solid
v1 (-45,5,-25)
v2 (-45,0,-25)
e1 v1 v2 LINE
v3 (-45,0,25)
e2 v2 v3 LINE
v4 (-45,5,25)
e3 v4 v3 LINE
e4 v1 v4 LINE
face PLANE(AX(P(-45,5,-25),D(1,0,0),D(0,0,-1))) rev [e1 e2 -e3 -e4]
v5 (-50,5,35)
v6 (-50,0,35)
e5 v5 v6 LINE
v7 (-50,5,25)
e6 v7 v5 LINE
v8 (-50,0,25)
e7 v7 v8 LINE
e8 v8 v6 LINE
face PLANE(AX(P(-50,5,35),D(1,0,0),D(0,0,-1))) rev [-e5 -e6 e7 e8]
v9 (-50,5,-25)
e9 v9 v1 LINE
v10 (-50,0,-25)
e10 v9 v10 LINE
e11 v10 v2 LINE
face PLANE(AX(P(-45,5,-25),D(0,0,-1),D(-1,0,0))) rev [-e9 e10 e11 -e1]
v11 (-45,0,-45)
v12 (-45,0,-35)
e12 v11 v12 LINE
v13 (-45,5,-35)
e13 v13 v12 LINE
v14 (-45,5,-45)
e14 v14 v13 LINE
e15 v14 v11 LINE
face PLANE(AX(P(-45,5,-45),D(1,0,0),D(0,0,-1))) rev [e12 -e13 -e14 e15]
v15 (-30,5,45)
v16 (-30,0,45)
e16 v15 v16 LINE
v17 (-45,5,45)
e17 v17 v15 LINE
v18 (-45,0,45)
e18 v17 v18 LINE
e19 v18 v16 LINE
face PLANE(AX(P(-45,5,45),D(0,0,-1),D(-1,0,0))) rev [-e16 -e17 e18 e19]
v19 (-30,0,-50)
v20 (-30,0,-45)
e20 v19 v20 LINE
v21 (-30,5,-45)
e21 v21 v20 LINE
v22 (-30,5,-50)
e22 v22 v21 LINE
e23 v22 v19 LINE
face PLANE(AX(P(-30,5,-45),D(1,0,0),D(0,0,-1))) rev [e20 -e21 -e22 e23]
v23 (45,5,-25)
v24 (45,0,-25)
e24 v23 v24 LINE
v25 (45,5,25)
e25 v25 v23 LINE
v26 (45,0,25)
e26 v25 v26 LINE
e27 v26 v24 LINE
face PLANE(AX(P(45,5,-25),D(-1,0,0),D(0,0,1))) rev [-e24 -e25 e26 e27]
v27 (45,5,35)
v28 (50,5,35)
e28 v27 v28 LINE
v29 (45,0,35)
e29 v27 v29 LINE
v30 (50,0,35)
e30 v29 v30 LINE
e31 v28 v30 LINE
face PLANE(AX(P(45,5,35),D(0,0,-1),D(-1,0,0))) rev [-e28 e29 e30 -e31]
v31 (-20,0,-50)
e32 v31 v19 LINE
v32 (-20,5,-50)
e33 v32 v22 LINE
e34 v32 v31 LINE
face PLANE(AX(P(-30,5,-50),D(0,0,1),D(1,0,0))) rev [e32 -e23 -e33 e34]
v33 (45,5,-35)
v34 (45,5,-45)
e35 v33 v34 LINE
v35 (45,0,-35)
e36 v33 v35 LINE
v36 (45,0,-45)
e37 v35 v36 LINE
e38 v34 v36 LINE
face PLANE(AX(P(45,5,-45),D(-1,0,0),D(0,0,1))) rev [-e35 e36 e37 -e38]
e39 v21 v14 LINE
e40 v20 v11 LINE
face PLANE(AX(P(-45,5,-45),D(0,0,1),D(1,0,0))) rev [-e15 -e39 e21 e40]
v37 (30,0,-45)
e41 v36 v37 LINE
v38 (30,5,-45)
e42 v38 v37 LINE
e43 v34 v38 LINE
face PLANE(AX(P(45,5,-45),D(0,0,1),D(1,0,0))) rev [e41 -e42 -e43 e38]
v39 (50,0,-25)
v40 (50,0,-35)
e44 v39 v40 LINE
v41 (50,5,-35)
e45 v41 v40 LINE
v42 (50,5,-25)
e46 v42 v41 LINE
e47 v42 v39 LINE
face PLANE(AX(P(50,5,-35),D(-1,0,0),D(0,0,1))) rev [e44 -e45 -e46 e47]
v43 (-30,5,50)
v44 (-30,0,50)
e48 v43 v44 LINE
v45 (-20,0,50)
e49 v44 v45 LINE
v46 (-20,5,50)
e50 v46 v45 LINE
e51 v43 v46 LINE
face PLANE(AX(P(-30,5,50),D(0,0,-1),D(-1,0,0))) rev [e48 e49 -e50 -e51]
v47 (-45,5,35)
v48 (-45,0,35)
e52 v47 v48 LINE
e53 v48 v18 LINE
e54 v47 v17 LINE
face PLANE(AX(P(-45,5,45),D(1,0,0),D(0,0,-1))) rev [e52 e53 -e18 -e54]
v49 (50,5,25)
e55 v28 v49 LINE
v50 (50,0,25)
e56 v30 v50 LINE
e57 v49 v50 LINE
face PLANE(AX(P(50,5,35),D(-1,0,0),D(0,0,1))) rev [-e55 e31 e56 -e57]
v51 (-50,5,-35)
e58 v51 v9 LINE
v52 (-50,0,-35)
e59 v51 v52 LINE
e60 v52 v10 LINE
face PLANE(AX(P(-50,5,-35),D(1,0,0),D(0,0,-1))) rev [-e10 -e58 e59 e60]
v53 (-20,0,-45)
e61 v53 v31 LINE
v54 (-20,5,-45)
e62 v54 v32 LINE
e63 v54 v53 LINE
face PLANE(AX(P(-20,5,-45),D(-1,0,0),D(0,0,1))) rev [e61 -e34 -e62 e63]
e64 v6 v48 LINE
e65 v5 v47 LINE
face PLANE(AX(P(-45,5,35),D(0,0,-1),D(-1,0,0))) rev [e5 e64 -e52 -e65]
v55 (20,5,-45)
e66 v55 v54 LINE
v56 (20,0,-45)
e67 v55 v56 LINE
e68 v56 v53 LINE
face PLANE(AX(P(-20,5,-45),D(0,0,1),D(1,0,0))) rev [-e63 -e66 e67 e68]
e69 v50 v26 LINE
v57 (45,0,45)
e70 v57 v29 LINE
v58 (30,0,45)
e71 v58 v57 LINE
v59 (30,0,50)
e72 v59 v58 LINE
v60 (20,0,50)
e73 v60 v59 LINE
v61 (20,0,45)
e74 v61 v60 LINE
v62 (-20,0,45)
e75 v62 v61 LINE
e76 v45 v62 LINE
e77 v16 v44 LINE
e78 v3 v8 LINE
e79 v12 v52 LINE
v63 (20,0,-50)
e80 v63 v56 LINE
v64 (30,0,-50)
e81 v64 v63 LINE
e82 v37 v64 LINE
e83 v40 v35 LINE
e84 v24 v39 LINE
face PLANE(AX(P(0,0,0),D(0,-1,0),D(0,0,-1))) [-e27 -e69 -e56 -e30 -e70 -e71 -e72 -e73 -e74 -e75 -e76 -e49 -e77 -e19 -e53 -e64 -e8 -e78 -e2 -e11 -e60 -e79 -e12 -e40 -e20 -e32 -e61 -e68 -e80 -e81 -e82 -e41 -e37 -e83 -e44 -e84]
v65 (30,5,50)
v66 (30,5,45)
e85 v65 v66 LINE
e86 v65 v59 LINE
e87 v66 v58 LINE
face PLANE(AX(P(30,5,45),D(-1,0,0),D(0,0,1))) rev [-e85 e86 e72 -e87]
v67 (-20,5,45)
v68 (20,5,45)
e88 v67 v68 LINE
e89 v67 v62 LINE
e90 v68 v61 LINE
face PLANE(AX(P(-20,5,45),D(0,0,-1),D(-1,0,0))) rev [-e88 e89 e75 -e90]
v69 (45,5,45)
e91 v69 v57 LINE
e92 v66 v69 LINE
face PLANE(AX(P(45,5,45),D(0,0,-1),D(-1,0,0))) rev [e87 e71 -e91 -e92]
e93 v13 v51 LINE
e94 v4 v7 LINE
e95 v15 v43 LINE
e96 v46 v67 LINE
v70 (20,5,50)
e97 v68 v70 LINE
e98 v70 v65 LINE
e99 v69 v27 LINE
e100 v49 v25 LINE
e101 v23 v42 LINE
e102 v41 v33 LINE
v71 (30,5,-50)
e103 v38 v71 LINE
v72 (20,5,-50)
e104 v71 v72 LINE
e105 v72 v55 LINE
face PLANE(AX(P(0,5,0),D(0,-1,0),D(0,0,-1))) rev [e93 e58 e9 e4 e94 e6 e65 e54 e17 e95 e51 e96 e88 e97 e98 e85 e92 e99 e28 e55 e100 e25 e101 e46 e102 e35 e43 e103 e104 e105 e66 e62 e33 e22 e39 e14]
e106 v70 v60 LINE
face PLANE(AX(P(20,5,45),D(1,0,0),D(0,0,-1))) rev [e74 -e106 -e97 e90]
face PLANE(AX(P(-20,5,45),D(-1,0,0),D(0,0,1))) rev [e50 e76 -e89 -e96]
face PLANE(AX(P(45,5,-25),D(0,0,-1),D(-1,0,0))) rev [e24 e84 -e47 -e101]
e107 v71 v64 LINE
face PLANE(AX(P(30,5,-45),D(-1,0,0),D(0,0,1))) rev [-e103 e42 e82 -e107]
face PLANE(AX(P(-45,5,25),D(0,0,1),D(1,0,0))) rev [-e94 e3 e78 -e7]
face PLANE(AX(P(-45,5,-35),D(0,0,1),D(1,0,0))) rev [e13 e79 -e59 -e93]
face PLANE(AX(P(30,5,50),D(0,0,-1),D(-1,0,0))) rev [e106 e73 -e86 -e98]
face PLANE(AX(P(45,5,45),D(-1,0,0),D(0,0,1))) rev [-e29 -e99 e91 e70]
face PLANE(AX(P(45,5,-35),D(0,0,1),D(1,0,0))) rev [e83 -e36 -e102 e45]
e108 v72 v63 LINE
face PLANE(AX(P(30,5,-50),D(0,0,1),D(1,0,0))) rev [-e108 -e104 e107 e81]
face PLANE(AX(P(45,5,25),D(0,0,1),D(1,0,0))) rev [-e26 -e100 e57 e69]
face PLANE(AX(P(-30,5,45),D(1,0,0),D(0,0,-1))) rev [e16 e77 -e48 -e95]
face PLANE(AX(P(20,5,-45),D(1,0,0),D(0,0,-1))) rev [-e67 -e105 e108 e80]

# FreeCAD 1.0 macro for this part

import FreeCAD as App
import Part
import Sketcher
Q = App.Units.Quantity


def add_polygon(sketch, points):
    """Adds a closed chain of lines whose ends are joined by coincident constraints."""
    first, n = sketch.GeometryCount, len(points)
    for a, b in zip(points, points[1:] + points[:1]):
        sketch.addGeometry(Part.LineSegment(App.Vector(*a, 0), App.Vector(*b, 0)), False)
    for i in range(n):
        sketch.addConstraint(Sketcher.Constraint("Coincident", first + i, 2, first + (i + 1) % n, 1))

doc = App.newDocument("Part")
body = doc.addObject("PartDesign::Body", "Body")

sketch1 = body.newObject("Sketcher::SketchObject", "Sketch")
sketch1.AttachmentSupport = (doc.getObject("XZ_Plane"), [""])
sketch1.MapMode = "FlatFace"
add_polygon(sketch1, [(-30, -45), (-45, -45), (-45, -35), (-50, -35), (-50, -25), (-45, -25), (-45, 25), (-50, 25), (-50, 35), (-45, 35), (-45, 45), (-30, 45), (-30, 50), (-20, 50), (-20, 45), (20, 45), (20, 50), (30, 50), (30, 45), (45, 45), (45, 35), (50, 35), (50, 25), (45, 25), (45, -25), (50, -25), (50, -35), (45, -35), (45, -45), (30, -45), (30, -50), (20, -50), (20, -45), (-20, -45), (-20, -50), (-30, -50)])
sketch1.addConstraint([
    Sketcher.Constraint("Horizontal", 0),
    Sketcher.Constraint("Vertical", 1),
    Sketcher.Constraint("Horizontal", 2),
    Sketcher.Constraint("Vertical", 3),
    Sketcher.Constraint("Horizontal", 4),
    Sketcher.Constraint("Vertical", 5),
    Sketcher.Constraint("Horizontal", 6),
    Sketcher.Constraint("Vertical", 7),
    Sketcher.Constraint("Horizontal", 8),
    Sketcher.Constraint("Vertical", 9),
    Sketcher.Constraint("Horizontal", 10),
    Sketcher.Constraint("Vertical", 11),
    Sketcher.Constraint("Horizontal", 12),
    Sketcher.Constraint("Vertical", 13),
    Sketcher.Constraint("Horizontal", 14),
    Sketcher.Constraint("Vertical", 15),
    Sketcher.Constraint("Horizontal", 16),
    Sketcher.Constraint("Vertical", 17),
    Sketcher.Constraint("Horizontal", 18),
    Sketcher.Constraint("Vertical", 19),
    Sketcher.Constraint("Horizontal", 20),
    Sketcher.Constraint("Vertical", 21),
    Sketcher.Constraint("Horizontal", 22),
    Sketcher.Constraint("Vertical", 23),
    Sketcher.Constraint("Horizontal", 24),
    Sketcher.Constraint("Vertical", 25),
    Sketcher.Constraint("Horizontal", 26),
    Sketcher.Constraint("Vertical", 27),
    Sketcher.Constraint("Horizontal", 28),
    Sketcher.Constraint("Vertical", 29),
    Sketcher.Constraint("Horizontal", 30),
    Sketcher.Constraint("Vertical", 31),
    Sketcher.Constraint("Horizontal", 32),
    Sketcher.Constraint("Vertical", 33),
    Sketcher.Constraint("Horizontal", 34),
    Sketcher.Constraint("Vertical", 35),
    Sketcher.Constraint("Symmetric", 0, 2, 18, 2, -1, 1),
    Sketcher.Constraint("Symmetric", 2, 2, 20, 2, -1, 1),
    Sketcher.Constraint("Symmetric", 4, 2, 22, 2, -1, 1),
    Sketcher.Constraint("Symmetric", 6, 2, 24, 2, -1, 1),
    Sketcher.Constraint("Symmetric", 8, 2, 26, 2, -1, 1),
    Sketcher.Constraint("Symmetric", 10, 2, 28, 2, -1, 1),
    Sketcher.Constraint("Symmetric", 12, 2, 30, 2, -1, 1),
    Sketcher.Constraint("Symmetric", 14, 2, 32, 2, -1, 1),
    Sketcher.Constraint("Symmetric", 16, 2, 34, 2, -1, 1),
    Sketcher.Constraint("Symmetric", 12, 2, 15, 2, -2),
    Sketcher.Constraint("Symmetric", 10, 2, 17, 2, -2),
    Sketcher.Constraint("Symmetric", 8, 2, 19, 2, -2),
    Sketcher.Constraint("Symmetric", 6, 2, 21, 2, -2),
    Sketcher.Constraint("Horizontal", 10, 2, 13, 2),
    Sketcher.Constraint("Vertical", 1, 2, 4, 2),
    Sketcher.Constraint("Equal", 34, 1),
    Sketcher.Constraint("Equal", 1, 3),
    Sketcher.Constraint("Equal", 26, 11),
    Sketcher.Constraint("DistanceX", 0, 2, 0, 1, Q("15 mm")),
    Sketcher.Constraint("DistanceX", 2, 2, 2, 1, Q("5 mm")),
    Sketcher.Constraint("DistanceX", 12, 1, 12, 2, Q("10 mm")),
    Sketcher.Constraint("DistanceX", 14, 1, 14, 2, Q("40 mm")),
    Sketcher.Constraint("DistanceY", 5, 1, 5, 2, Q("50 mm")),
])
pad1 = body.newObject("PartDesign::Pad", "Pad")
pad1.Profile = sketch1
pad1.Length = 5
pad1.Reversed = True

doc.recompute()
